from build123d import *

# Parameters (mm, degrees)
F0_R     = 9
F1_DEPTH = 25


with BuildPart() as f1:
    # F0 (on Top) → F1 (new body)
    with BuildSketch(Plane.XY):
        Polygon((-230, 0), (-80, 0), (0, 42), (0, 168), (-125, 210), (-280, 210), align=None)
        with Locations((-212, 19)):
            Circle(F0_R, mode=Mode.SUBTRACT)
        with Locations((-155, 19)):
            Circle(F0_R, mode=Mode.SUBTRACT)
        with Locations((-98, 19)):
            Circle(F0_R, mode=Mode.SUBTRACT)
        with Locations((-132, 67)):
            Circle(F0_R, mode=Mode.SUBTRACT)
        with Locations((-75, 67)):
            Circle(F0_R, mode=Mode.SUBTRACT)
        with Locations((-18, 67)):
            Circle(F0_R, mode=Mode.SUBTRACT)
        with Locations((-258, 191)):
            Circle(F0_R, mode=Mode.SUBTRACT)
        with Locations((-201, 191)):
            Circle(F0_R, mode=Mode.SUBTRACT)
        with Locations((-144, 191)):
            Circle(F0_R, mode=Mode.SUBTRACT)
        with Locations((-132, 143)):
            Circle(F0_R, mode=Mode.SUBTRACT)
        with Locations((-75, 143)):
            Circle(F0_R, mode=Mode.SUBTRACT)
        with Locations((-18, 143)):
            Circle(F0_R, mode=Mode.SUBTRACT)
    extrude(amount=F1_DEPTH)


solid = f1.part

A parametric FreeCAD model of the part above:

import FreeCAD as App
import Part
import Sketcher


def add_polygon(sketch, points):
    """Adds a closed chain of lines whose ends are joined by coincident constraints."""
    first, n = sketch.GeometryCount, len(points)
    for a, b in zip(points, points[1:] + points[:1]):
        sketch.addGeometry(Part.LineSegment(App.Vector(*a, 0), App.Vector(*b, 0)), False)
    for i in range(n):
        sketch.addConstraint(Sketcher.Constraint("Coincident", first + i, 2, first + (i + 1) % n, 1))

doc = App.newDocument("Part")
body = doc.addObject("PartDesign::Body", "Body")

sketch1 = doc.addObject("Sketcher::SketchObject", "Sketch")
body.addObject(sketch1)
sketch1.AttachmentSupport = (doc.XY_Plane, [""])
sketch1.MapMode = "FlatFace"
add_polygon(sketch1, [(-230, 0), (-80, 0), (0, 42), (0, 168), (-125, 210), (-280, 210)])
sketch1.addGeometry(Part.Circle(App.Vector(-212, 19, 0), App.Vector(0, 0, 1), 9), False)
sketch1.addGeometry(Part.Circle(App.Vector(-155, 19, 0), App.Vector(0, 0, 1), 9), False)
sketch1.addGeometry(Part.Circle(App.Vector(-98, 19, 0), App.Vector(0, 0, 1), 9), False)
sketch1.addGeometry(Part.Circle(App.Vector(-132, 67, 0), App.Vector(0, 0, 1), 9), False)
sketch1.addGeometry(Part.Circle(App.Vector(-75, 67, 0), App.Vector(0, 0, 1), 9), False)
sketch1.addGeometry(Part.Circle(App.Vector(-18, 67, 0), App.Vector(0, 0, 1), 9), False)
sketch1.addGeometry(Part.Circle(App.Vector(-258, 191, 0), App.Vector(0, 0, 1), 9), False)
sketch1.addGeometry(Part.Circle(App.Vector(-201, 191, 0), App.Vector(0, 0, 1), 9), False)
sketch1.addGeometry(Part.Circle(App.Vector(-144, 191, 0), App.Vector(0, 0, 1), 9), False)
sketch1.addGeometry(Part.Circle(App.Vector(-132, 143, 0), App.Vector(0, 0, 1), 9), False)
sketch1.addGeometry(Part.Circle(App.Vector(-75, 143, 0), App.Vector(0, 0, 1), 9), False)
sketch1.addGeometry(Part.Circle(App.Vector(-18, 143, 0), App.Vector(0, 0, 1), 9), False)
sketch1.addConstraint([
    Sketcher.Constraint("Horizontal", 0),
    Sketcher.Constraint("Vertical", 2),
    Sketcher.Constraint("Horizontal", 4),
    Sketcher.Constraint("Equal", 6, 7),
    Sketcher.Constraint("Equal", 7, 8),
    Sketcher.Constraint("Equal", 8, 9),
    Sketcher.Constraint("Equal", 9, 10),
    Sketcher.Constraint("Equal", 10, 11),
    Sketcher.Constraint("Equal", 11, 12),
    Sketcher.Constraint("Equal", 12, 13),
    Sketcher.Constraint("Equal", 13, 14),
    Sketcher.Constraint("Equal", 14, 15),
    Sketcher.Constraint("Equal", 15, 16),
    Sketcher.Constraint("Equal", 16, 17),
    Sketcher.Constraint("PointOnObject", 0, 2, -1),
    Sketcher.Constraint("PointOnObject", 1, 2, -2),
    Sketcher.Constraint("Horizontal", 6, 3, 7, 3),
    Sketcher.Constraint("Horizontal", 7, 3, 8, 3),
    Sketcher.Constraint("Horizontal", 9, 3, 10, 3),
    Sketcher.Constraint("Horizontal", 10, 3, 11, 3),
    Sketcher.Constraint("Horizontal", 12, 3, 13, 3),
    Sketcher.Constraint("Horizontal", 13, 3, 14, 3),
    Sketcher.Constraint("Horizontal", 15, 3, 16, 3),
    Sketcher.Constraint("Horizontal", 16, 3, 17, 3),
    Sketcher.Constraint("Vertical", 9, 3, 15, 3),
    Sketcher.Constraint("Vertical", 10, 3, 16, 3),
    Sketcher.Constraint("Vertical", 11, 3, 17, 3),
    Sketcher.Constraint("Diameter", 6, 18.0),
    Sketcher.Constraint("DistanceX", 0, 1, 0, 2, 150.0),
    Sketcher.Constraint("DistanceX", 4, 2, 4, 1, 155.0),
    Sketcher.Constraint("DistanceY", 2, 1, 2, 2, 126.0),
    Sketcher.Constraint("DistanceX", 6, 3, -1, 1, 212.0),
    Sketcher.Constraint("DistanceY", -1, 1, 6, 3, 19.0),
    Sketcher.Constraint("DistanceX", 7, 3, -1, 1, 155.0),
    Sketcher.Constraint("DistanceX", 8, 3, -1, 1, 98.0),
    Sketcher.Constraint("DistanceX", 9, 3, -1, 1, 132.0),
    Sketcher.Constraint("DistanceY", -1, 1, 9, 3, 67.0),
    Sketcher.Constraint("DistanceX", 10, 3, -1, 1, 75.0),
    Sketcher.Constraint("DistanceX", 11, 3, -1, 1, 18.0),
    Sketcher.Constraint("DistanceX", 12, 3, -1, 1, 258.0),
    Sketcher.Constraint("DistanceY", -1, 1, 12, 3, 191.0),
    Sketcher.Constraint("DistanceX", 13, 3, -1, 1, 201.0),
    Sketcher.Constraint("DistanceX", 14, 3, -1, 1, 144.0),
    Sketcher.Constraint("DistanceY", -1, 1, 15, 3, 143.0),
    Sketcher.Constraint("DistanceX", 0, 2, -1, 1, 80.0),
    Sketcher.Constraint("DistanceY", -1, 1, 1, 2, 42.0),
    Sketcher.Constraint("DistanceX", 3, 2, -1, 1, 125.0),
    Sketcher.Constraint("DistanceY", -1, 1, 3, 2, 210.0),
])
pad1 = doc.addObject("PartDesign::Pad", "Pad")
body.addObject(pad1)
pad1.Profile = sketch1
pad1.Length = 25

doc.recompute()
